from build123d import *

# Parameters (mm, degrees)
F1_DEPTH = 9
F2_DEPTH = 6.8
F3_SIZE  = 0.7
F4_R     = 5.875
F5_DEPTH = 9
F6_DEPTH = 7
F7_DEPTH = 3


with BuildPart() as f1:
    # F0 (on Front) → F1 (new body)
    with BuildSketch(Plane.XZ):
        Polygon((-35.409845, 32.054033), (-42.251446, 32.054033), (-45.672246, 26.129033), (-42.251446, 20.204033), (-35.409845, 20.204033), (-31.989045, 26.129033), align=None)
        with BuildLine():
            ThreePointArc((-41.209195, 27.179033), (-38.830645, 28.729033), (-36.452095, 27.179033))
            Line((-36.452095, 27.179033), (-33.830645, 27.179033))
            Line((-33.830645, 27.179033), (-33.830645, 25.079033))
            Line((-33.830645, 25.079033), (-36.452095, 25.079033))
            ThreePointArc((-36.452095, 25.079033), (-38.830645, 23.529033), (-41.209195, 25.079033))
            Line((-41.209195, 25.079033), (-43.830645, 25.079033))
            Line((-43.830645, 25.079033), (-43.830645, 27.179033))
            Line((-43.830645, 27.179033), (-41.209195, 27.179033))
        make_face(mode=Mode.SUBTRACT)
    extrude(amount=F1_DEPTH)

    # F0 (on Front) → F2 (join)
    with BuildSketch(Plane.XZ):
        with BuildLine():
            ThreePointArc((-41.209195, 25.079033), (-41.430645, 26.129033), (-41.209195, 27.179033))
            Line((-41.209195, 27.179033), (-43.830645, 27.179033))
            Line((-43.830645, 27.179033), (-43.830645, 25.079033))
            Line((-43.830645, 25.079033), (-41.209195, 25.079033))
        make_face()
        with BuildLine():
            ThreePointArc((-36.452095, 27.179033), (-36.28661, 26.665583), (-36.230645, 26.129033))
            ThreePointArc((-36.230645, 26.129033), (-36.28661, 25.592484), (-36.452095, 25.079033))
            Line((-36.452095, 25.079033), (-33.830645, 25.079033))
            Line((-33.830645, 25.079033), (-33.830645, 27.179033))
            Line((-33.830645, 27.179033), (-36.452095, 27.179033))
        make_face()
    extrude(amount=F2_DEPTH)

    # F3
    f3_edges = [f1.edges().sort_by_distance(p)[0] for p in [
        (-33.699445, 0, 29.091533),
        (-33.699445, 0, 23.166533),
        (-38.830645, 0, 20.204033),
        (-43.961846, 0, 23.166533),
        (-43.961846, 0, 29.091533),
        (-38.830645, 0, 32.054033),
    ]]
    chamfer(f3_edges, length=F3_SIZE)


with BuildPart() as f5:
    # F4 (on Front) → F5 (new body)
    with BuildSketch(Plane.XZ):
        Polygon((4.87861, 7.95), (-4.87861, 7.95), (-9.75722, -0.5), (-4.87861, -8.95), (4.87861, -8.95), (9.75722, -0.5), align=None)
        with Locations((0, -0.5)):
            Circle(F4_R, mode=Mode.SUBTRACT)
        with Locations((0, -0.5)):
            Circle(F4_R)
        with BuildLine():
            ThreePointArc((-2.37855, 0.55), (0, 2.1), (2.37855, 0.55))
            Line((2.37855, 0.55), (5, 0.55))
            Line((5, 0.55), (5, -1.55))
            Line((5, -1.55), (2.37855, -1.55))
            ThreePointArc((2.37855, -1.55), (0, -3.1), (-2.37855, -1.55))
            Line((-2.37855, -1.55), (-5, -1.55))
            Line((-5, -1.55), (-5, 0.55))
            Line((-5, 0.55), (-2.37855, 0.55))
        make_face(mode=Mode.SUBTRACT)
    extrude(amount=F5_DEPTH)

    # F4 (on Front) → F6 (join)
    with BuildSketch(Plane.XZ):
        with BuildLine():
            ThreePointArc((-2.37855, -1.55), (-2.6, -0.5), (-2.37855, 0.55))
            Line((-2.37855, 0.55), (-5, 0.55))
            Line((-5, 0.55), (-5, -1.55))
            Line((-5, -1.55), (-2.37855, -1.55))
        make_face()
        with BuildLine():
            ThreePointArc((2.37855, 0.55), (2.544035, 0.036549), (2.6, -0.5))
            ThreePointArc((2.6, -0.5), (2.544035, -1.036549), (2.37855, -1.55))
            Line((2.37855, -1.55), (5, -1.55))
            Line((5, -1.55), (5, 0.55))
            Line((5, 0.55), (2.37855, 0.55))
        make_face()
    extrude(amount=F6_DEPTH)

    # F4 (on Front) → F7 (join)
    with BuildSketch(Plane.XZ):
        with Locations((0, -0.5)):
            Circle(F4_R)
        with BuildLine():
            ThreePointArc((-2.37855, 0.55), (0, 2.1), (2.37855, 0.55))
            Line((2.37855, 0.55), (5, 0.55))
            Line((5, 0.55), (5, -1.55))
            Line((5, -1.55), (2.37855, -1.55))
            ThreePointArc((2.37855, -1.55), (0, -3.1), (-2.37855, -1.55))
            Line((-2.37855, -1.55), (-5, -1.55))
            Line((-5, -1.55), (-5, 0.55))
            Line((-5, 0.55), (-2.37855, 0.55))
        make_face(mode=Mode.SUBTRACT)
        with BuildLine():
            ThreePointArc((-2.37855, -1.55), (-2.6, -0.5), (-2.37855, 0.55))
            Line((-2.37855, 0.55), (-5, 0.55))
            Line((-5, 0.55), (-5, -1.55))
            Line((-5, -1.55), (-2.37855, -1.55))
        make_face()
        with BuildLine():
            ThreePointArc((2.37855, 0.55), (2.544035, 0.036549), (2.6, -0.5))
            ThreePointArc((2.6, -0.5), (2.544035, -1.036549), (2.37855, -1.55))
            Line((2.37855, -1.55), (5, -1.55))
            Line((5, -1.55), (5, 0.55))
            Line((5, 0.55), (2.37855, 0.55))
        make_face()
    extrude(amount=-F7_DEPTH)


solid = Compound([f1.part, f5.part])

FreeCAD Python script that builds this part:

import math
import FreeCAD as App
import Part
import Sketcher
Q = App.Units.Quantity


def edges_at(feature, points):
    """Names of the edges that pass closest to the given points."""
    edges = feature.Shape.Edges
    near = lambda p: min(range(len(edges)), key=lambda i: edges[i].distToShape(Part.Vertex(*p))[0])
    return sorted({f"Edge{near(p) + 1}" for p in points})

doc = App.newDocument("Part")
params = doc.addObject("Spreadsheet::Sheet", "Params")
for row, (alias, value) in enumerate([
    ("sketch1_radius", "2.6 mm"),
    ("sketch1_height", "2.1 mm"),
    ("pad1_length", "9 mm"),
    ("sketch2_radius", "2.6 mm"),
    ("sketch2_height", "2.1 mm"),
    ("pad2_length", "6.8 mm"),
    ("chamfer_size", "0.7 mm"),
    ("sketch3_radius", "2.6 mm"),
    ("sketch3_height", "2.1 mm"),
    ("pad3_length", "9 mm"),
    ("sketch4_radius", "2.6 mm"),
    ("sketch4_height", "2.1 mm"),
    ("sketch4_height2", "2.1 mm"),
    ("pad4_length", "7 mm"),
    ("sketch5_radius", "2.6 mm"),
    ("sketch5_diameter", "11.75 mm"),
    ("pad5_length", "3 mm"),
], start=1):
    params.set(f"A{row}", alias)
    params.set(f"B{row}", "=" + value)
    params.setAlias(f"B{row}", alias)

body = doc.addObject("PartDesign::Body", "Body")

# Sketch on XZ plane
sketch1 = body.newObject("Sketcher::SketchObject", "Sketch")
sketch1.AttachmentSupport = (doc.getObject("XZ_Plane"), [""])
sketch1.MapMode = "FlatFace"
sketch1.addGeometry(Part.LineSegment(App.Vector(-35.4, 32.1, 0), App.Vector(-42.3, 32.1, 0)), False)
sketch1.addGeometry(Part.LineSegment(App.Vector(-42.3, 32.1, 0), App.Vector(-45.7, 26.1, 0)), False)
sketch1.addGeometry(Part.LineSegment(App.Vector(-45.7, 26.1, 0), App.Vector(-42.3, 20.2, 0)), False)
sketch1.addGeometry(Part.LineSegment(App.Vector(-42.3, 20.2, 0), App.Vector(-35.4, 20.2, 0)), False)
sketch1.addGeometry(Part.LineSegment(App.Vector(-35.4, 20.2, 0), App.Vector(-32, 26.1, 0)), False)
sketch1.addGeometry(Part.LineSegment(App.Vector(-32, 26.1, 0), App.Vector(-35.4, 32.1, 0)), False)
sketch1.addGeometry(Part.LineSegment(App.Vector(-43.8, 27.2, 0), App.Vector(-41.2, 27.2, 0)), False)
sketch1.addGeometry(Part.ArcOfCircle(Part.Circle(App.Vector(-38.8, 26.1, 0), App.Vector(0, 0, 1), 2.6), math.radians(24), math.radians(156)), False)
sketch1.addGeometry(Part.LineSegment(App.Vector(-36.5, 27.2, 0), App.Vector(-33.8, 27.2, 0)), False)
sketch1.addGeometry(Part.LineSegment(App.Vector(-33.8, 27.2, 0), App.Vector(-33.8, 25.1, 0)), False)
sketch1.addGeometry(Part.LineSegment(App.Vector(-33.8, 25.1, 0), App.Vector(-36.5, 25.1, 0)), False)
sketch1.addGeometry(Part.ArcOfCircle(Part.Circle(App.Vector(-38.8, 26.1, 0), App.Vector(0, 0, 1), 2.6), math.radians(-156), math.radians(-24)), False)
sketch1.addGeometry(Part.LineSegment(App.Vector(-41.2, 25.1, 0), App.Vector(-43.8, 25.1, 0)), False)
sketch1.addGeometry(Part.LineSegment(App.Vector(-43.8, 25.1, 0), App.Vector(-43.8, 27.2, 0)), False)
sketch1.addConstraint(Sketcher.Constraint("Coincident", 0, 2, 1, 1))
sketch1.addConstraint(Sketcher.Constraint("Coincident", 1, 2, 2, 1))
sketch1.addConstraint(Sketcher.Constraint("Coincident", 2, 2, 3, 1))
sketch1.addConstraint(Sketcher.Constraint("Coincident", 3, 2, 4, 1))
sketch1.addConstraint(Sketcher.Constraint("Coincident", 4, 2, 5, 1))
sketch1.addConstraint(Sketcher.Constraint("Coincident", 5, 2, 0, 1))
sketch1.addConstraint(Sketcher.Constraint("Coincident", 6, 2, 7, 2))
sketch1.addConstraint(Sketcher.Constraint("Coincident", 7, 1, 8, 1))
sketch1.addConstraint(Sketcher.Constraint("Coincident", 8, 2, 9, 1))
sketch1.addConstraint(Sketcher.Constraint("Coincident", 9, 2, 10, 1))
sketch1.addConstraint(Sketcher.Constraint("Coincident", 10, 2, 11, 2))
sketch1.addConstraint(Sketcher.Constraint("Coincident", 11, 1, 12, 1))
sketch1.addConstraint(Sketcher.Constraint("Coincident", 12, 2, 13, 1))
sketch1.addConstraint(Sketcher.Constraint("Coincident", 13, 2, 6, 1))
sketch1.addConstraint(Sketcher.Constraint("Horizontal", 0))
sketch1.addConstraint(Sketcher.Constraint("Horizontal", 3))
sketch1.addConstraint(Sketcher.Constraint("Horizontal", 6))
sketch1.addConstraint(Sketcher.Constraint("Horizontal", 8))
sketch1.addConstraint(Sketcher.Constraint("Vertical", 9))
sketch1.addConstraint(Sketcher.Constraint("Horizontal", 10))
sketch1.addConstraint(Sketcher.Constraint("Horizontal", 12))
sketch1.addConstraint(Sketcher.Constraint("Vertical", 13))
sketch1.addConstraint(Sketcher.Constraint("Coincident", 11, 3, 7, 3))
sketch1.addConstraint(Sketcher.Constraint("Equal", 7, 11))
sketch1.addConstraint(Sketcher.Constraint("Parallel", 1, 4))
sketch1.addConstraint(Sketcher.Constraint("Parallel", 2, 5))
sketch1.addConstraint(Sketcher.Constraint("Horizontal", 11, 3, 1, 2))
sketch1.addConstraint(Sketcher.Constraint("Horizontal", 1, 2, 4, 2))
sketch1.addConstraint(Sketcher.Constraint("Horizontal", 6, 2, 7, 1))
sketch1.addConstraint(Sketcher.Constraint("Horizontal", 10, 2, 11, 1))
sketch1.addConstraint(Sketcher.Constraint("Vertical", 0, 2, 2, 2))
sketch1.addConstraint(Sketcher.Constraint("Vertical", 3, 2, 5, 2))
sketch1.addConstraint(Sketcher.Constraint("Vertical", 7, 1, 10, 2))
sketch1.addConstraint(Sketcher.Constraint("Equal", 6, 8))
sketch1.addConstraint(Sketcher.Constraint("Radius", 7, Q("2.6 mm")))
sketch1.addConstraint(Sketcher.Constraint("Angle", 1, Q("-119.999997 deg")))
sketch1.addConstraint(Sketcher.Constraint("DistanceY", 9, 2, 9, 1, Q("2.1 mm")))
sketch1.addConstraint(Sketcher.Constraint("DistanceX", 11, 3, 8, 2, Q("5 mm")))
sketch1.addConstraint(Sketcher.Constraint("DistanceY", 2, 2, 0, 2, Q("11.85 mm")))
sketch1.addConstraint(Sketcher.Constraint("DistanceX", 0, 2, 0, 1, Q("6.841601 mm")))
sketch1.addConstraint(Sketcher.Constraint("DistanceX", 0, 2, 11, 3, Q("3.420801 mm")))
sketch1.addConstraint(Sketcher.Constraint("DistanceX", 7, 3, -1, 1, Q("38.830645 mm")))
sketch1.addConstraint(Sketcher.Constraint("DistanceY", -1, 1, 7, 3, Q("26.129033 mm")))
sketch1.setExpression("Constraints[34]", "Params.sketch1_radius")
sketch1.setExpression("Constraints[36]", "Params.sketch1_height")
pad1 = body.newObject("PartDesign::Pad", "Pad")
pad1.Profile = sketch1
pad1.setExpression("Length", "Params.pad1_length")

# Sketch on XZ plane
sketch2 = body.newObject("Sketcher::SketchObject", "Sketch001")
sketch2.AttachmentSupport = (doc.getObject("XZ_Plane"), [""])
sketch2.MapMode = "FlatFace"
sketch2.addGeometry(Part.ArcOfCircle(Part.Circle(App.Vector(-38.8, 26.1, 0), App.Vector(0, 0, 1), 2.6), math.radians(156), math.radians(204)), False)
sketch2.addGeometry(Part.LineSegment(App.Vector(-41.2, 27.2, 0), App.Vector(-43.8, 27.2, 0)), False)
sketch2.addGeometry(Part.LineSegment(App.Vector(-43.8, 27.2, 0), App.Vector(-43.8, 25.1, 0)), False)
sketch2.addGeometry(Part.LineSegment(App.Vector(-43.8, 25.1, 0), App.Vector(-41.2, 25.1, 0)), False)
sketch2.addGeometry(Part.ArcOfCircle(Part.Circle(App.Vector(-38.8, 26.1, 0), App.Vector(0, 0, 1), 2.6), math.radians(0), math.radians(24)), False)
sketch2.addGeometry(Part.ArcOfCircle(Part.Circle(App.Vector(-38.8, 26.1, 0), App.Vector(0, 0, 1), 2.6), math.radians(-24), math.radians(0)), False)
sketch2.addGeometry(Part.LineSegment(App.Vector(-36.5, 25.1, 0), App.Vector(-33.8, 25.1, 0)), False)
sketch2.addGeometry(Part.LineSegment(App.Vector(-33.8, 25.1, 0), App.Vector(-33.8, 27.2, 0)), False)
sketch2.addGeometry(Part.LineSegment(App.Vector(-33.8, 27.2, 0), App.Vector(-36.5, 27.2, 0)), False)
sketch2.addConstraint(Sketcher.Constraint("Coincident", 0, 1, 1, 1))
sketch2.addConstraint(Sketcher.Constraint("Coincident", 1, 2, 2, 1))
sketch2.addConstraint(Sketcher.Constraint("Coincident", 2, 2, 3, 1))
sketch2.addConstraint(Sketcher.Constraint("Coincident", 3, 2, 0, 2))
sketch2.addConstraint(Sketcher.Constraint("Tangent", 4, 1, 5, 2))
sketch2.addConstraint(Sketcher.Constraint("Coincident", 5, 1, 6, 1))
sketch2.addConstraint(Sketcher.Constraint("Coincident", 6, 2, 7, 1))
sketch2.addConstraint(Sketcher.Constraint("Coincident", 7, 2, 8, 1))
sketch2.addConstraint(Sketcher.Constraint("Coincident", 8, 2, 4, 2))
sketch2.addConstraint(Sketcher.Constraint("Horizontal", 1))
sketch2.addConstraint(Sketcher.Constraint("Vertical", 2))
sketch2.addConstraint(Sketcher.Constraint("Horizontal", 3))
sketch2.addConstraint(Sketcher.Constraint("Horizontal", 6))
sketch2.addConstraint(Sketcher.Constraint("Vertical", 7))
sketch2.addConstraint(Sketcher.Constraint("Horizontal", 8))
sketch2.addConstraint(Sketcher.Constraint("Coincident", 4, 3, 0, 3))
sketch2.addConstraint(Sketcher.Constraint("Equal", 0, 4))
sketch2.addConstraint(Sketcher.Constraint("Horizontal", 0, 3, 4, 1))
sketch2.addConstraint(Sketcher.Constraint("Horizontal", 3, 2, 5, 1))
sketch2.addConstraint(Sketcher.Constraint("Horizontal", 1, 2, 7, 2))
sketch2.addConstraint(Sketcher.Constraint("Vertical", 0, 1, 3, 2))
sketch2.addConstraint(Sketcher.Constraint("Vertical", 5, 1, 8, 2))
sketch2.addConstraint(Sketcher.Constraint("Equal", 3, 6))
sketch2.addConstraint(Sketcher.Constraint("Radius", 0, Q("2.6 mm")))
sketch2.addConstraint(Sketcher.Constraint("DistanceY", 2, 2, 2, 1, Q("2.1 mm")))
sketch2.addConstraint(Sketcher.Constraint("DistanceX", 1, 2, 4, 3, Q("4.999999 mm")))
sketch2.addConstraint(Sketcher.Constraint("DistanceX", 0, 3, -1, 1, Q("38.830645 mm")))
sketch2.addConstraint(Sketcher.Constraint("DistanceY", -1, 1, 0, 3, Q("26.129033 mm")))
sketch2.setExpression("Constraints[23]", "Params.sketch2_radius")
sketch2.setExpression("Constraints[24]", "Params.sketch2_height")
pad2 = body.newObject("PartDesign::Pad", "Pad001")
pad2.Profile = sketch2
pad2.setExpression("Length", "Params.pad2_length")
doc.recompute()

chamfer = body.newObject("PartDesign::Chamfer", "Chamfer")
chamfer.Base = (pad2, edges_at(pad2, [
    (-33.699, 0, 29.092),
    (-33.699, 0, 23.167),
    (-38.831, 0, 20.204),
    (-43.962, 0, 23.167),
    (-43.962, 0, 29.092),
    (-38.831, 0, 32.054),
]))
chamfer.setExpression("Size", "Params.chamfer_size")
body2 = doc.addObject("PartDesign::Body", "Body001")

# Sketch on XZ plane
sketch3 = body2.newObject("Sketcher::SketchObject", "Sketch002")
sketch3.AttachmentSupport = (doc.getObject("XZ_Plane001"), [""])
sketch3.MapMode = "FlatFace"
sketch3.addGeometry(Part.LineSegment(App.Vector(4.9, 8, 0), App.Vector(-4.9, 8, 0)), False)
sketch3.addGeometry(Part.LineSegment(App.Vector(-4.9, 8, 0), App.Vector(-9.8, -0.5, 0)), False)
sketch3.addGeometry(Part.LineSegment(App.Vector(-9.8, -0.5, 0), App.Vector(-4.9, -8.9, 0)), False)
sketch3.addGeometry(Part.LineSegment(App.Vector(-4.9, -8.9, 0), App.Vector(4.9, -8.9, 0)), False)
sketch3.addGeometry(Part.LineSegment(App.Vector(4.9, -8.9, 0), App.Vector(9.8, -0.5, 0)), False)
sketch3.addGeometry(Part.LineSegment(App.Vector(9.8, -0.5, 0), App.Vector(4.9, 8, 0)), False)
sketch3.addGeometry(Part.LineSegment(App.Vector(-5, 0.6, 0), App.Vector(-2.4, 0.6, 0)), False)
sketch3.addGeometry(Part.ArcOfCircle(Part.Circle(App.Vector(0, -0.5, 0), App.Vector(0, 0, 1), 2.6), math.radians(24), math.radians(156)), False)
sketch3.addGeometry(Part.LineSegment(App.Vector(2.4, 0.6, 0), App.Vector(5, 0.6, 0)), False)
sketch3.addGeometry(Part.LineSegment(App.Vector(5, 0.6, 0), App.Vector(5, -1.6, 0)), False)
sketch3.addGeometry(Part.LineSegment(App.Vector(5, -1.6, 0), App.Vector(2.4, -1.6, 0)), False)
sketch3.addGeometry(Part.ArcOfCircle(Part.Circle(App.Vector(0, -0.5, 0), App.Vector(0, 0, 1), 2.6), math.radians(-156), math.radians(-24)), False)
sketch3.addGeometry(Part.LineSegment(App.Vector(-2.4, -1.6, 0), App.Vector(-5, -1.6, 0)), False)
sketch3.addGeometry(Part.LineSegment(App.Vector(-5, -1.6, 0), App.Vector(-5, 0.6, 0)), False)
sketch3.addConstraint(Sketcher.Constraint("Coincident", 0, 2, 1, 1))
sketch3.addConstraint(Sketcher.Constraint("Coincident", 1, 2, 2, 1))
sketch3.addConstraint(Sketcher.Constraint("Coincident", 2, 2, 3, 1))
sketch3.addConstraint(Sketcher.Constraint("Coincident", 3, 2, 4, 1))
sketch3.addConstraint(Sketcher.Constraint("Coincident", 4, 2, 5, 1))
sketch3.addConstraint(Sketcher.Constraint("Coincident", 5, 2, 0, 1))
sketch3.addConstraint(Sketcher.Constraint("Coincident", 6, 2, 7, 2))
sketch3.addConstraint(Sketcher.Constraint("Coincident", 7, 1, 8, 1))
sketch3.addConstraint(Sketcher.Constraint("Coincident", 8, 2, 9, 1))
sketch3.addConstraint(Sketcher.Constraint("Coincident", 9, 2, 10, 1))
sketch3.addConstraint(Sketcher.Constraint("Coincident", 10, 2, 11, 2))
sketch3.addConstraint(Sketcher.Constraint("Coincident", 11, 1, 12, 1))
sketch3.addConstraint(Sketcher.Constraint("Coincident", 12, 2, 13, 1))
sketch3.addConstraint(Sketcher.Constraint("Coincident", 13, 2, 6, 1))
sketch3.addConstraint(Sketcher.Constraint("Horizontal", 0))
sketch3.addConstraint(Sketcher.Constraint("Horizontal", 3))
sketch3.addConstraint(Sketcher.Constraint("Horizontal", 6))
sketch3.addConstraint(Sketcher.Constraint("Horizontal", 8))
sketch3.addConstraint(Sketcher.Constraint("Vertical", 9))
sketch3.addConstraint(Sketcher.Constraint("Horizontal", 10))
sketch3.addConstraint(Sketcher.Constraint("Horizontal", 12))
sketch3.addConstraint(Sketcher.Constraint("Vertical", 13))
sketch3.addConstraint(Sketcher.Constraint("Coincident", 11, 3, 7, 3))
sketch3.addConstraint(Sketcher.Constraint("Equal", 7, 11))
sketch3.addConstraint(Sketcher.Constraint("Symmetric", 1, 2, 4, 2, -2))
sketch3.addConstraint(Sketcher.Constraint("Symmetric", 6, 2, 7, 1, -2))
sketch3.addConstraint(Sketcher.Constraint("Symmetric", 9, 2, 12, 2, -2))
sketch3.addConstraint(Sketcher.Constraint("Parallel", 1, 4))
sketch3.addConstraint(Sketcher.Constraint("Parallel", 2, 5))
sketch3.addConstraint(Sketcher.Constraint("Horizontal", 11, 3, 1, 2))
sketch3.addConstraint(Sketcher.Constraint("Vertical", 0, 2, 2, 2))
sketch3.addConstraint(Sketcher.Constraint("Vertical", 3, 2, 5, 2))
sketch3.addConstraint(Sketcher.Constraint("Vertical", 7, 1, 10, 2))
sketch3.addConstraint(Sketcher.Constraint("Radius", 7, Q("2.6 mm")))
sketch3.addConstraint(Sketcher.Constraint("Angle", 1, Q("-120.000001 deg")))
sketch3.addConstraint(Sketcher.Constraint("DistanceY", 9, 2, 9, 1, Q("2.1 mm")))
sketch3.addConstraint(Sketcher.Constraint("DistanceX", -1, 1, 8, 2, Q("5 mm")))
sketch3.addConstraint(Sketcher.Constraint("DistanceY", 7, 3, -1, 1, Q("0.5 mm")))
sketch3.addConstraint(Sketcher.Constraint("DistanceY", 2, 2, 0, 2, Q("16.9 mm")))
sketch3.addConstraint(Sketcher.Constraint("DistanceX", 0, 2, 0, 1, Q("9.75722 mm")))
sketch3.setExpression("Constraints[33]", "Params.sketch3_radius")
sketch3.setExpression("Constraints[35]", "Params.sketch3_height")
pad3 = body2.newObject("PartDesign::Pad", "Pad002")
pad3.Profile = sketch3
pad3.setExpression("Length", "Params.pad3_length")

# Sketch on XZ plane
sketch4 = body2.newObject("Sketcher::SketchObject", "Sketch003")
sketch4.AttachmentSupport = (doc.getObject("XZ_Plane001"), [""])
sketch4.MapMode = "FlatFace"
sketch4.addGeometry(Part.ArcOfCircle(Part.Circle(App.Vector(0, -0.5, 0), App.Vector(0, 0, 1), 2.6), math.radians(156.181161), math.radians(203.818839)), False)
sketch4.addGeometry(Part.LineSegment(App.Vector(-2.37855, 0.55, 0), App.Vector(-5, 0.55, 0)), False)
sketch4.addGeometry(Part.LineSegment(App.Vector(-5, 0.55, 0), App.Vector(-5, -1.55, 0)), False)
sketch4.addGeometry(Part.LineSegment(App.Vector(-5, -1.55, 0), App.Vector(-2.37855, -1.55, 0)), False)
sketch4.addGeometry(Part.ArcOfCircle(Part.Circle(App.Vector(-0.00001, -0.500002, 0), App.Vector(0, 0, 1), 2.60001), math.radians(0.000045), math.radians(23.818794)), False)
sketch4.addGeometry(Part.ArcOfCircle(Part.Circle(App.Vector(-0.00001, -0.499998, 0), App.Vector(0, 0, 1), 2.60001), math.radians(-23.818794), math.radians(-0.000045)), False)
sketch4.addGeometry(Part.LineSegment(App.Vector(2.37855, -1.55, 0), App.Vector(5, -1.55, 0)), False)
sketch4.addGeometry(Part.LineSegment(App.Vector(5, -1.55, 0), App.Vector(5, 0.55, 0)), False)
sketch4.addGeometry(Part.LineSegment(App.Vector(5, 0.55, 0), App.Vector(2.37855, 0.55, 0)), False)
sketch4.addConstraint(Sketcher.Constraint("Coincident", 0, 1, 1, 1))
sketch4.addConstraint(Sketcher.Constraint("Coincident", 1, 2, 2, 1))
sketch4.addConstraint(Sketcher.Constraint("Coincident", 2, 2, 3, 1))
sketch4.addConstraint(Sketcher.Constraint("Coincident", 3, 2, 0, 2))
sketch4.addConstraint(Sketcher.Constraint("Coincident", 4, 1, 5, 2))
sketch4.addConstraint(Sketcher.Constraint("Coincident", 5, 1, 6, 1))
sketch4.addConstraint(Sketcher.Constraint("Coincident", 6, 2, 7, 1))
sketch4.addConstraint(Sketcher.Constraint("Coincident", 7, 2, 8, 1))
sketch4.addConstraint(Sketcher.Constraint("Coincident", 8, 2, 4, 2))
sketch4.addConstraint(Sketcher.Constraint("Horizontal", 1))
sketch4.addConstraint(Sketcher.Constraint("Vertical", 2))
sketch4.addConstraint(Sketcher.Constraint("Horizontal", 3))
sketch4.addConstraint(Sketcher.Constraint("Horizontal", 6))
sketch4.addConstraint(Sketcher.Constraint("Vertical", 7))
sketch4.addConstraint(Sketcher.Constraint("Horizontal", 8))
sketch4.addConstraint(Sketcher.Constraint("Coincident", 5, 3, 4, 3))
sketch4.addConstraint(Sketcher.Constraint("PointOnObject", 0, 3, -2))
sketch4.addConstraint(Sketcher.Constraint("Radius", 0, Q("2.6 mm")))
sketch4.addConstraint(Sketcher.Constraint("DistanceY", 2, 2, 2, 1, Q("2.1 mm")))
sketch4.addConstraint(Sketcher.Constraint("DistanceY", 7, 1, 7, 2, Q("2.1 mm")))
sketch4.addConstraint(Sketcher.Constraint("DistanceX", 1, 2, -1, 1, Q("5 mm")))
sketch4.addConstraint(Sketcher.Constraint("DistanceX", -1, 1, 6, 2, Q("5 mm")))
sketch4.addConstraint(Sketcher.Constraint("DistanceY", 0, 3, -1, 1, Q("0.5 mm")))
sketch4.addConstraint(Sketcher.Constraint("DistanceX", -1, 1, 4, 1, Q("2.6 mm")))
sketch4.addConstraint(Sketcher.Constraint("DistanceY", 4, 1, -1, 1, Q("0.5 mm")))
sketch4.addConstraint(Sketcher.Constraint("DistanceY", -1, 1, 0, 1, Q("0.55 mm")))
sketch4.addConstraint(Sketcher.Constraint("DistanceY", 5, 1, -1, 1, Q("1.55 mm")))
sketch4.addConstraint(Sketcher.Constraint("Radius", 4, Q("2.60001 mm")))
sketch4.addConstraint(Sketcher.Constraint("DistanceX", 6, 1, 6, 2, Q("2.62145 mm")))
sketch4.setExpression("Constraints[17]", "Params.sketch4_radius")
sketch4.setExpression("Constraints[18]", "Params.sketch4_height")
sketch4.setExpression("Constraints[19]", "Params.sketch4_height2")
pad4 = body2.newObject("PartDesign::Pad", "Pad003")
pad4.Profile = sketch4
pad4.setExpression("Length", "Params.pad4_length")

# Sketch on XZ plane
sketch5 = body2.newObject("Sketcher::SketchObject", "Sketch004")
sketch5.AttachmentSupport = (doc.getObject("XZ_Plane001"), [""])
sketch5.MapMode = "FlatFace"
sketch5.addGeometry(Part.Circle(App.Vector(0, -0.5, 0), App.Vector(0, 0, 1), 5.9), False)
sketch5.addGeometry(Part.ArcOfCircle(Part.Circle(App.Vector(0, -0.5, 0), App.Vector(0, 0, 1), 2.6), math.radians(-156), math.radians(-24)), False)
sketch5.addGeometry(Part.ArcOfCircle(Part.Circle(App.Vector(0, -0.5, 0), App.Vector(0, 0, 1), 2.6), math.radians(156), math.radians(204)), False)
sketch5.addGeometry(Part.ArcOfCircle(Part.Circle(App.Vector(0, -0.5, 0), App.Vector(0, 0, 1), 2.6), math.radians(24), math.radians(156)), False)
sketch5.addGeometry(Part.ArcOfCircle(Part.Circle(App.Vector(0, -0.5, 0), App.Vector(0, 0, 1), 2.6), math.radians(0), math.radians(24)), False)
sketch5.addGeometry(Part.ArcOfCircle(Part.Circle(App.Vector(0, -0.5, 0), App.Vector(0, 0, 1), 2.6), math.radians(-24), math.radians(0)), False)
sketch5.addConstraint(Sketcher.Constraint("Tangent", 1, 1, 2, 2))
sketch5.addConstraint(Sketcher.Constraint("Tangent", 2, 1, 3, 2))
sketch5.addConstraint(Sketcher.Constraint("Tangent", 3, 1, 4, 2))
sketch5.addConstraint(Sketcher.Constraint("Tangent", 4, 1, 5, 2))
sketch5.addConstraint(Sketcher.Constraint("Tangent", 5, 1, 1, 2))
sketch5.addConstraint(Sketcher.Constraint("Coincident", 1, 3, 0, 3))
sketch5.addConstraint(Sketcher.Constraint("Coincident", 3, 3, 0, 3))
sketch5.addConstraint(Sketcher.Constraint("Symmetric", 2, 1, 3, 1, -2))
sketch5.addConstraint(Sketcher.Constraint("Horizontal", 3, 3, 4, 1))
sketch5.addConstraint(Sketcher.Constraint("Horizontal", 1, 1, 5, 1))
sketch5.addConstraint(Sketcher.Constraint("Vertical", 1, 1, 2, 1))
sketch5.addConstraint(Sketcher.Constraint("Radius", 1, Q("2.6 mm")))
sketch5.addConstraint(Sketcher.Constraint("Diameter", 0, Q("11.75 mm")))
sketch5.addConstraint(Sketcher.Constraint("DistanceY", 0, 3, -1, 1, Q("0.5 mm")))
sketch5.addConstraint(Sketcher.Constraint("DistanceY", 1, 1, 2, 1, Q("2.1 mm")))
sketch5.setExpression("Constraints[11]", "Params.sketch5_radius")
sketch5.setExpression("Constraints[12]", "Params.sketch5_diameter")
pad5 = body2.newObject("PartDesign::Pad", "Pad004")
pad5.Profile = sketch5
pad5.setExpression("Length", "Params.pad5_length")
pad5.Reversed = True

doc.recompute()
